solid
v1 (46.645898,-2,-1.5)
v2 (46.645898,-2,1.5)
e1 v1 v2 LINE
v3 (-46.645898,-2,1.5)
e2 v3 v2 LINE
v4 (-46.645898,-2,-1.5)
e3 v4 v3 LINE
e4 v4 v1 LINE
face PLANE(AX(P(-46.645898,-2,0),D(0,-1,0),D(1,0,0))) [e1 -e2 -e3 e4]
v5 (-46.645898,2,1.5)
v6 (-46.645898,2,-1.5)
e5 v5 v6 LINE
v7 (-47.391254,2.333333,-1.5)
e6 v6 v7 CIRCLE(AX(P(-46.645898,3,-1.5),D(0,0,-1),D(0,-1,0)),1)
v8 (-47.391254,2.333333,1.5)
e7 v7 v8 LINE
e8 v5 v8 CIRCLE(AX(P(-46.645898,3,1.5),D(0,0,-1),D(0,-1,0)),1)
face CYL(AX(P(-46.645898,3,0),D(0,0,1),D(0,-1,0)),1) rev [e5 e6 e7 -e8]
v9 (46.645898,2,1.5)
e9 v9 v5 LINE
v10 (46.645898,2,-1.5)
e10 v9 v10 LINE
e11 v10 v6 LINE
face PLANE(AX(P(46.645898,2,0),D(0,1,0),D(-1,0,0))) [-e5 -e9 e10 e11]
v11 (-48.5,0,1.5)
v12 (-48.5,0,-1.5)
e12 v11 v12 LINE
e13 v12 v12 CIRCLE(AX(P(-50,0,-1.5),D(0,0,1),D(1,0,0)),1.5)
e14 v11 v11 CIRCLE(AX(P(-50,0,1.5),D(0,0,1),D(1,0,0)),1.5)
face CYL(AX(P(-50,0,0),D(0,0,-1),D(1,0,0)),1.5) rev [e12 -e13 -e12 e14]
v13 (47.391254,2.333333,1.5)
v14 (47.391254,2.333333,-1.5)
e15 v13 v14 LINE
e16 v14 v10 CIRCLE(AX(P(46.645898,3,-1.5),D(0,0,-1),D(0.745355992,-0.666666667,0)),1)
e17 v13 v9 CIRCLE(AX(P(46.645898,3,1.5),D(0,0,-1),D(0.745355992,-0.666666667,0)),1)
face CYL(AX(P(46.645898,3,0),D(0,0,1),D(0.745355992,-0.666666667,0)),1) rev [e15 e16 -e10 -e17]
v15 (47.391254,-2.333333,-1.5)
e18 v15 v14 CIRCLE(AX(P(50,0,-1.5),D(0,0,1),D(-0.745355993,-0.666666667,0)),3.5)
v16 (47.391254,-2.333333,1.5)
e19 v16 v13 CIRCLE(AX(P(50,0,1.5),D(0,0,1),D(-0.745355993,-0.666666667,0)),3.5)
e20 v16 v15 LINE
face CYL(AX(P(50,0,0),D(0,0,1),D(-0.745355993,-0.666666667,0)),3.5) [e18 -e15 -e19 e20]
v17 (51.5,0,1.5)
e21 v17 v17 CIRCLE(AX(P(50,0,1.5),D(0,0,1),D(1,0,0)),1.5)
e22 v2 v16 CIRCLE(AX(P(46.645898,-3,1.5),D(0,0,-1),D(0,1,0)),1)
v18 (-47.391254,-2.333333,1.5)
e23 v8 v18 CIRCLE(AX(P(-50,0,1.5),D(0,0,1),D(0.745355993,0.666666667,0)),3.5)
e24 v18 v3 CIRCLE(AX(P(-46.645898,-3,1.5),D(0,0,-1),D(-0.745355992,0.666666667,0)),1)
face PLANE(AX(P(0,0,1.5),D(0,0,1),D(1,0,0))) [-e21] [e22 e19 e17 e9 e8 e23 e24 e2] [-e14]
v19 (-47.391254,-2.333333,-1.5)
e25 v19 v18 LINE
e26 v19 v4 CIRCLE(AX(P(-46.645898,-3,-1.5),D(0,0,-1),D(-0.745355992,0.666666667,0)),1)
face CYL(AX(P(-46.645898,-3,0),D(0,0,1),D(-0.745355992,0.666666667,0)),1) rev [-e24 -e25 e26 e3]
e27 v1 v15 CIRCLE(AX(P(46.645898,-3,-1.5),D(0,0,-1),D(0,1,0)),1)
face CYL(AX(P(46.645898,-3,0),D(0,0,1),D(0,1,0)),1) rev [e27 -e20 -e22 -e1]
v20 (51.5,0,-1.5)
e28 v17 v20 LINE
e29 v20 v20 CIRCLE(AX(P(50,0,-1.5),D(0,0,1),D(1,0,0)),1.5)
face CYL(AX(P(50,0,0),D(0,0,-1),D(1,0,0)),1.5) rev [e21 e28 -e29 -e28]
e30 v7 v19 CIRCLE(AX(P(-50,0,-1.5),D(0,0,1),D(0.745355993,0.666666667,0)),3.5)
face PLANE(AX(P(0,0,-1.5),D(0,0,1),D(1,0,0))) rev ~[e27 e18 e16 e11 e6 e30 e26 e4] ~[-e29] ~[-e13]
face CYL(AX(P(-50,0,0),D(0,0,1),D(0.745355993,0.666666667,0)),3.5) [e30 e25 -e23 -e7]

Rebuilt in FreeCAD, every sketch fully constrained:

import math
import FreeCAD as App
import Part
import Sketcher

V = App.Vector
Q = App.Units.Quantity

doc = App.newDocument("Part")
body = doc.addObject("PartDesign::Body", "Body")

sketch1 = doc.addObject("Sketcher::SketchObject", "Sketch")
body.addObject(sketch1)
sketch1.AttachmentSupport = (doc.XY_Plane, [""])
sketch1.MapMode = "FlatFace"
sketch1.addGeometry([
    Part.ArcOfCircle(Part.Circle(V(-46.645898, 3, 0), V(0, 0, 1), 1), math.radians(-138.189685), math.radians(-90)),
    Part.ArcOfCircle(Part.Circle(V(-50, 0, 0), V(0, 0, 1), 3.5), math.radians(41.810315), math.radians(318.189685)),
    Part.ArcOfCircle(Part.Circle(V(-46.645898, -3, 0), V(0, 0, 1), 1), math.radians(90), math.radians(138.189685)),
    Part.LineSegment(V(-46.645898, -2, 0), V(46.645898, -2, 0)),
    Part.ArcOfCircle(Part.Circle(V(46.645898, -3, 0), V(0, 0, 1), 1), math.radians(41.810315), math.radians(90)),
    Part.ArcOfCircle(Part.Circle(V(50, 0, 0), V(0, 0, 1), 3.5), math.radians(-138.189685), math.radians(138.189685)),
    Part.ArcOfCircle(Part.Circle(V(46.645898, 3, 0), V(0, 0, 1), 1), math.radians(-90), math.radians(-41.810315)),
    Part.LineSegment(V(46.645898, 2, 0), V(-46.645898, 2, 0)),
    Part.Circle(V(-50, 0, 0), V(0, 0, 1), 1.5),
    Part.Circle(V(50, 0, 0), V(0, 0, 1), 1.5),
], False)
sketch1.addConstraint([
    Sketcher.Constraint("Tangent", 0, 1, 1, 1),
    Sketcher.Constraint("Tangent", 1, 2, 2, 2),
    Sketcher.Constraint("Tangent", 2, 1, 3, 1),
    Sketcher.Constraint("Tangent", 3, 2, 4, 2),
    Sketcher.Constraint("Tangent", 4, 1, 5, 1),
    Sketcher.Constraint("Tangent", 5, 2, 6, 2),
    Sketcher.Constraint("Tangent", 6, 1, 7, 1),
    Sketcher.Constraint("Tangent", 7, 2, 0, 2),
    Sketcher.Constraint("Horizontal", 3),
    Sketcher.Constraint("Horizontal", 7),
    Sketcher.Constraint("Coincident", 8, 3, 1, 3),
    Sketcher.Constraint("Coincident", 9, 3, 5, 3),
    Sketcher.Constraint("Equal", 0, 2),
    Sketcher.Constraint("Equal", 2, 4),
    Sketcher.Constraint("Equal", 1, 5),
    Sketcher.Constraint("Equal", 4, 6),
    Sketcher.Constraint("Equal", 8, 9),
    Sketcher.Constraint("Symmetric", 0, 3, 4, 3, -1, 1),
    Sketcher.Constraint("Symmetric", 1, 3, 5, 3, -2),
    Sketcher.Constraint("Diameter", 8, Q("3 mm")),
    Sketcher.Constraint("Radius", 0, Q("1 mm")),
    Sketcher.Constraint("Radius", 1, Q("3.5 mm")),
    Sketcher.Constraint("DistanceY", -1, 1, 0, 3, Q("3 mm")),
    Sketcher.Constraint("DistanceX", 1, 3, -1, 1, Q("50 mm")),
])
pad1 = doc.addObject("PartDesign::Pad", "Pad")
body.addObject(pad1)
pad1.Profile = sketch1
pad1.Length = 3
pad1.Midplane = True

doc.recompute()
